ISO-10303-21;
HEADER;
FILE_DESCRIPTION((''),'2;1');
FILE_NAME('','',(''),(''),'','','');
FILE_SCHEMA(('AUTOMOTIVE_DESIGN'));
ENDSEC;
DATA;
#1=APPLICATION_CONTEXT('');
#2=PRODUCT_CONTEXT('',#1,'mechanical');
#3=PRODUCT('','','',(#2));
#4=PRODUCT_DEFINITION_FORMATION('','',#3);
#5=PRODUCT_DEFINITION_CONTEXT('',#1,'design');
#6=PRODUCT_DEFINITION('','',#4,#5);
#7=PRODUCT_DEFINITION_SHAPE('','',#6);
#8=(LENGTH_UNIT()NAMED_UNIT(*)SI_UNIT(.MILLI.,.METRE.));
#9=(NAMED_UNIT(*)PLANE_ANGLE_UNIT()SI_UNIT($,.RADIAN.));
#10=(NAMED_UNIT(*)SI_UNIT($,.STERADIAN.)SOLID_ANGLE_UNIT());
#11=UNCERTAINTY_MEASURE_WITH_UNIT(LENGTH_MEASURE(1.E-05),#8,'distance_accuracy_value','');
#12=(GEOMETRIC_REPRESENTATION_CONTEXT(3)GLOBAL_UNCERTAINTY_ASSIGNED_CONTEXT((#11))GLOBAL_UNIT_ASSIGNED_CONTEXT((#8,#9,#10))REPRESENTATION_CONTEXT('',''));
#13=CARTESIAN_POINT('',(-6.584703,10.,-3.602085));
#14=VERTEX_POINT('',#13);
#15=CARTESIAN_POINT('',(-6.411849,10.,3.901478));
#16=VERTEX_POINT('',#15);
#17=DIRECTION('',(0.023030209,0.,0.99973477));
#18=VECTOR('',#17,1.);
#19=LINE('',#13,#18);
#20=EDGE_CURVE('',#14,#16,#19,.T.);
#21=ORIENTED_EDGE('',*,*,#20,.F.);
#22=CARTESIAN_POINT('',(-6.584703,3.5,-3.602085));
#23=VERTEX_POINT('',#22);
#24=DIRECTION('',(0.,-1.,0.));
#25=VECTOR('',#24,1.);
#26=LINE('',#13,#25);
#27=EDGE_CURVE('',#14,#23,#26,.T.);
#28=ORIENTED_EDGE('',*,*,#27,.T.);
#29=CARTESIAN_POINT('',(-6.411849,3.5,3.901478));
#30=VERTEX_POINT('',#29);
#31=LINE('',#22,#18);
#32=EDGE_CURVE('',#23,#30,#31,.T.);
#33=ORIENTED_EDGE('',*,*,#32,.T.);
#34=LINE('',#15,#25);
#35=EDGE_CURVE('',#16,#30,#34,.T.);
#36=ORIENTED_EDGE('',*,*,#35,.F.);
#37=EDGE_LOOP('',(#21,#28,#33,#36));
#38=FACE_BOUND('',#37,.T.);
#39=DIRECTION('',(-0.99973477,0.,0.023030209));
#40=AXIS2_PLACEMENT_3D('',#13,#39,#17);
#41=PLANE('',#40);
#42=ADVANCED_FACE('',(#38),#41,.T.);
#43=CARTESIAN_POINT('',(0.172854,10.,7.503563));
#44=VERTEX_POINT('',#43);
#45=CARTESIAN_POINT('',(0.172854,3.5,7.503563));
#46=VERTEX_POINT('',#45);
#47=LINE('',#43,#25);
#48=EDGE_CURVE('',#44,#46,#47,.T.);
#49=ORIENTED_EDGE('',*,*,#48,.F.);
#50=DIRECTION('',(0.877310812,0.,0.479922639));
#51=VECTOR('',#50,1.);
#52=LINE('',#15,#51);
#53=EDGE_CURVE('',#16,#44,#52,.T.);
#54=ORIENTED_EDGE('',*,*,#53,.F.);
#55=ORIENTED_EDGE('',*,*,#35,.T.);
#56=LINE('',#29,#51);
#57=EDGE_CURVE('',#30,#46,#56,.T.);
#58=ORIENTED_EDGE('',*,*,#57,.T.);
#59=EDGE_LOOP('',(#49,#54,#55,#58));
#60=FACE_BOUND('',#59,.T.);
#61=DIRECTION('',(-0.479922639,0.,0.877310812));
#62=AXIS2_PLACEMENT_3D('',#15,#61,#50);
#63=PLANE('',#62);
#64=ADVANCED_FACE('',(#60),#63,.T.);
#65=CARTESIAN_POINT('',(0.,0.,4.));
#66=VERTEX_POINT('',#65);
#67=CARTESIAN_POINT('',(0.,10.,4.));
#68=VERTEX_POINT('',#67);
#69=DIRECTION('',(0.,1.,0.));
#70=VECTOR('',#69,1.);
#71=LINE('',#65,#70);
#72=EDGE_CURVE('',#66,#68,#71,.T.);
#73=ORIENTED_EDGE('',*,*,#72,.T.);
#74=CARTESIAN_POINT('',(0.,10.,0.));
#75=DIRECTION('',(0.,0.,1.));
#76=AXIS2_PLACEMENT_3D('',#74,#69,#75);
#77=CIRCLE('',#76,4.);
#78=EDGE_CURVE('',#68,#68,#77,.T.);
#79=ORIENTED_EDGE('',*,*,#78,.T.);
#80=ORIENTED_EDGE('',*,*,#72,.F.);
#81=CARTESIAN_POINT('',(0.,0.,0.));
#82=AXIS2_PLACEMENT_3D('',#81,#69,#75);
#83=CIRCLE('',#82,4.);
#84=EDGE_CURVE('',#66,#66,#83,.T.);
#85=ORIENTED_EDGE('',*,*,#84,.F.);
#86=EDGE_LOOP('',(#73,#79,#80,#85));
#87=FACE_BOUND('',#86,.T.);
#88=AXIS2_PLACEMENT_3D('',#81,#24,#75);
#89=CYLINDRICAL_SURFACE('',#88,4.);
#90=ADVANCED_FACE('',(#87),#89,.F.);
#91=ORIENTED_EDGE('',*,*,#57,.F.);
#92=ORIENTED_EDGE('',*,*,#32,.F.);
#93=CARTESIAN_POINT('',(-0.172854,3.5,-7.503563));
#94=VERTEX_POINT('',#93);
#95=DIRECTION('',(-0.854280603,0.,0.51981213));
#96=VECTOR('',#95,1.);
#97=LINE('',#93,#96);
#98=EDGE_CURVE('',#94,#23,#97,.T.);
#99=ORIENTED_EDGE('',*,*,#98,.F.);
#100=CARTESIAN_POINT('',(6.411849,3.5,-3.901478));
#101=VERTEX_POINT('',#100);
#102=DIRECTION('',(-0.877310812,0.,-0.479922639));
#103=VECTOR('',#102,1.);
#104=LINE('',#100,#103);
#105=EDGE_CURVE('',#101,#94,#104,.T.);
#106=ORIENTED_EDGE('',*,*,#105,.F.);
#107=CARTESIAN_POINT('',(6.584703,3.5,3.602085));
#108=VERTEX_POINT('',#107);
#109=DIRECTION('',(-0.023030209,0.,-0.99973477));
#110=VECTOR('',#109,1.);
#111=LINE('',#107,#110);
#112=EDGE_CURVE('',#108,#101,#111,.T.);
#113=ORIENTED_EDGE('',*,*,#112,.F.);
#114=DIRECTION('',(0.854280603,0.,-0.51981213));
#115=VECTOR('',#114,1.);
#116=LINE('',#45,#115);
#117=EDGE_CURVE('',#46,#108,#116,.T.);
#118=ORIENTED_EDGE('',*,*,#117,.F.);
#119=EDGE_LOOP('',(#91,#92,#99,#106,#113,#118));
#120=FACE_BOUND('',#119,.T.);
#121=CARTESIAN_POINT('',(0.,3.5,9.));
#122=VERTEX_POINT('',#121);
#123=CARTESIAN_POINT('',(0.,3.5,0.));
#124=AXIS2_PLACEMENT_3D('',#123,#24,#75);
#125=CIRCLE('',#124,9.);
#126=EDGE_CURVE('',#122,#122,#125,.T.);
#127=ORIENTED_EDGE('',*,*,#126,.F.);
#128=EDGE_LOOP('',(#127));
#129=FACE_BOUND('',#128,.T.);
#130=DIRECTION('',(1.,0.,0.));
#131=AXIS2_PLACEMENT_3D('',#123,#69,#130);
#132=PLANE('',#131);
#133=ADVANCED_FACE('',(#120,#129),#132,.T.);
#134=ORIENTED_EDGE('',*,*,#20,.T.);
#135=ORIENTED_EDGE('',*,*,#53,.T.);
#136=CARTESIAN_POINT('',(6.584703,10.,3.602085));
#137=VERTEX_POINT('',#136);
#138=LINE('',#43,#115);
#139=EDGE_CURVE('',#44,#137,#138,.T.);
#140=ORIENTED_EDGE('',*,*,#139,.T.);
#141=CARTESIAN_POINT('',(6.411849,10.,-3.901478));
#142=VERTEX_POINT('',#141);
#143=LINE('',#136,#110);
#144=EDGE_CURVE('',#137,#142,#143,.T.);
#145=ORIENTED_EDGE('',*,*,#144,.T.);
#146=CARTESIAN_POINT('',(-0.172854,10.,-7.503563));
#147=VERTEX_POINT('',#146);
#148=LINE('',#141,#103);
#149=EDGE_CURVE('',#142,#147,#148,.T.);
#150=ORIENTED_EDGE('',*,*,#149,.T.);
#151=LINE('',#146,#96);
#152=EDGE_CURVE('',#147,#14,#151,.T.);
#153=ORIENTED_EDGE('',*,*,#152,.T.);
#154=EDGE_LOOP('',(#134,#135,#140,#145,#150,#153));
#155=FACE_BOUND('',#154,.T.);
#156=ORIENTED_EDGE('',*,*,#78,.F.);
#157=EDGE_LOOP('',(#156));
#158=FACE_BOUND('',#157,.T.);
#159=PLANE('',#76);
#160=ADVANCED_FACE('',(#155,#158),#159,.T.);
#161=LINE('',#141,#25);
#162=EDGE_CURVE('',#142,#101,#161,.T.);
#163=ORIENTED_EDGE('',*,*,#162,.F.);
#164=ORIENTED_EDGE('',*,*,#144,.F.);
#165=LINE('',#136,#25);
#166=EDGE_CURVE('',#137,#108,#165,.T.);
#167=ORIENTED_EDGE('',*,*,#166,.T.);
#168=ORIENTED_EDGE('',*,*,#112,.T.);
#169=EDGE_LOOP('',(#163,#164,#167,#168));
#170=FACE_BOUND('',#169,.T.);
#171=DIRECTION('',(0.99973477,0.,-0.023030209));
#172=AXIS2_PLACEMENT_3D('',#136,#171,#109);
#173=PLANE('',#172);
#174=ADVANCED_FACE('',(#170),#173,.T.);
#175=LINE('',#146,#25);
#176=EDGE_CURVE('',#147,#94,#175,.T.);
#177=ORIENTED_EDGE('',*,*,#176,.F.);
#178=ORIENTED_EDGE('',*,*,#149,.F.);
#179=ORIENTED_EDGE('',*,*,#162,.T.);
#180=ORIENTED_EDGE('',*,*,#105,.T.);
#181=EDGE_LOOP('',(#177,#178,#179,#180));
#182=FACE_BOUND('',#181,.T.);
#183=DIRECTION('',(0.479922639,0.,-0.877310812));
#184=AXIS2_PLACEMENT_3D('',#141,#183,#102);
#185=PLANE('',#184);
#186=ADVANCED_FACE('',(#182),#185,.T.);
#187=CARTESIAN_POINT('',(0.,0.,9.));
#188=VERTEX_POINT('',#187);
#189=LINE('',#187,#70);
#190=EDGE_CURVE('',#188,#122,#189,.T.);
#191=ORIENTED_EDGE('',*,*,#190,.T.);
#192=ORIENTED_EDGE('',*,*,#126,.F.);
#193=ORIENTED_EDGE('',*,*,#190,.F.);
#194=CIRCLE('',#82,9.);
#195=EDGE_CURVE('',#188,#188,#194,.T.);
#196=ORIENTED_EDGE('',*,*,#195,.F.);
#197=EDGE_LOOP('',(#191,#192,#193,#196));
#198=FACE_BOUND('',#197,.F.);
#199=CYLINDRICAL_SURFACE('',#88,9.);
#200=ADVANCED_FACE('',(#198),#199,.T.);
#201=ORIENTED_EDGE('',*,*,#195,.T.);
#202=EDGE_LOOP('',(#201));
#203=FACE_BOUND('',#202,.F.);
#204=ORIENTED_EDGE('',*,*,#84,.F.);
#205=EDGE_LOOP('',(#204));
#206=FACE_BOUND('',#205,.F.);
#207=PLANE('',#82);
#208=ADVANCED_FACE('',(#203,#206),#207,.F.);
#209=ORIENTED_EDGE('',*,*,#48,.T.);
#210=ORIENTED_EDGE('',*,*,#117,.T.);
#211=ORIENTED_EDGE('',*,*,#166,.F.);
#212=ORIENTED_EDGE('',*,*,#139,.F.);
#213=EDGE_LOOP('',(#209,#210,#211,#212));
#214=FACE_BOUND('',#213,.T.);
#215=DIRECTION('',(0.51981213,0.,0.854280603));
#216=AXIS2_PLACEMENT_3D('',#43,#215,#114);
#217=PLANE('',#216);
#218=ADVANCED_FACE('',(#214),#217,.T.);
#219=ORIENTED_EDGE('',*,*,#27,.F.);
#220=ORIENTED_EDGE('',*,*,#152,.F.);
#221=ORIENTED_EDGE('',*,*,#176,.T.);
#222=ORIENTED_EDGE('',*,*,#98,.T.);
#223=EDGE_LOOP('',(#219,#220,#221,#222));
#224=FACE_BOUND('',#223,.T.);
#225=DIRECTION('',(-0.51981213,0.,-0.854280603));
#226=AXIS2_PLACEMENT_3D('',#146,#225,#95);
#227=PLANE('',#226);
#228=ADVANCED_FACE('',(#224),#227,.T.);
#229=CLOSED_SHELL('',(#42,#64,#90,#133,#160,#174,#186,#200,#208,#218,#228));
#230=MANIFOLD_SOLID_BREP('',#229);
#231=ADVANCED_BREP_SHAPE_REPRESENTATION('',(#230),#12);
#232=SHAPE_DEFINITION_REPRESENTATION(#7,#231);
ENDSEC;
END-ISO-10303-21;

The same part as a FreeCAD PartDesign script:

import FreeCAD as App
import Part
import Sketcher


def add_polygon(sketch, points):
    """Adds a closed chain of lines whose ends are joined by coincident constraints."""
    first, n = sketch.GeometryCount, len(points)
    for a, b in zip(points, points[1:] + points[:1]):
        sketch.addGeometry(Part.LineSegment(App.Vector(*a, 0), App.Vector(*b, 0)), False)
    for i in range(n):
        sketch.addConstraint(Sketcher.Constraint("Coincident", first + i, 2, first + (i + 1) % n, 1))

doc = App.newDocument("Part")
body = doc.addObject("PartDesign::Body", "Body")

sketch1 = doc.addObject("Sketcher::SketchObject", "Sketch")
body.addObject(sketch1)
sketch1.AttachmentSupport = (doc.XZ_Plane, [""])
sketch1.MapMode = "FlatFace"
sketch1.addGeometry(Part.Circle(App.Vector(0, 0, 0), App.Vector(0, 0, 1), 9), False)
sketch1.addGeometry(Part.Circle(App.Vector(0, 0, 0), App.Vector(0, 0, 1), 4), False)
sketch1.addConstraint(Sketcher.Constraint("Coincident", 0, 3, -1, 1))
sketch1.addConstraint(Sketcher.Constraint("Coincident", 1, 3, -1, 1))
sketch1.addConstraint(Sketcher.Constraint("Diameter", 0, 18.0))
sketch1.addConstraint(Sketcher.Constraint("Diameter", 1, 8.0))
pad1 = doc.addObject("PartDesign::Pad", "Pad")
body.addObject(pad1)
pad1.Profile = sketch1
pad1.Length = 10
pad1.Reversed = True

sketch2 = doc.addObject("Sketcher::SketchObject", "Sketch001")
body.addObject(sketch2)
sketch2.AttachmentSupport = (doc.XZ_Plane, [""])
sketch2.MapMode = "FlatFace"
sketch2.AttachmentOffset = App.Placement(App.Vector(0, 0, -10), App.Rotation())
sketch2.addGeometry(Part.Circle(App.Vector(0, 0, 0), App.Vector(0, 0, 1), 9), False)
add_polygon(sketch2, [(6, -4), (7, 4), (0, 8), (-6, 4), (-7, -4), (0, -8)])
sketch2.addConstraint(Sketcher.Constraint("Coincident", 0, 3, -1, 1))
sketch2.addConstraint(Sketcher.Constraint("Symmetric", 1, 2, 4, 2, -1, 1))
sketch2.addConstraint(Sketcher.Constraint("Symmetric", 2, 2, 5, 2, -1, 1))
sketch2.addConstraint(Sketcher.Constraint("Symmetric", 3, 2, 6, 2, -1, 1))
sketch2.addConstraint(Sketcher.Constraint("Equal", 1, 2))
sketch2.addConstraint(Sketcher.Constraint("Equal", 2, 3))
sketch2.addConstraint(Sketcher.Constraint("Diameter", 0, 18.998296))
sketch2.addConstraint(Sketcher.Constraint("DistanceX", 3, 2, -1, 1, 6.411849))
sketch2.addConstraint(Sketcher.Constraint("DistanceX", 2, 2, 1, 2, 6.411849))
sketch2.addConstraint(Sketcher.Constraint("DistanceY", 4, 2, 1, 2, 7.20417))
sketch2.addConstraint(Sketcher.Constraint("DistanceY", 5, 2, 3, 2, 11.405041))
pocket1 = doc.addObject("PartDesign::Pocket", "Pocket")
body.addObject(pocket1)
pocket1.Profile = sketch2
pocket1.Length = 6.5
pocket1.Reversed = True

doc.recompute()
